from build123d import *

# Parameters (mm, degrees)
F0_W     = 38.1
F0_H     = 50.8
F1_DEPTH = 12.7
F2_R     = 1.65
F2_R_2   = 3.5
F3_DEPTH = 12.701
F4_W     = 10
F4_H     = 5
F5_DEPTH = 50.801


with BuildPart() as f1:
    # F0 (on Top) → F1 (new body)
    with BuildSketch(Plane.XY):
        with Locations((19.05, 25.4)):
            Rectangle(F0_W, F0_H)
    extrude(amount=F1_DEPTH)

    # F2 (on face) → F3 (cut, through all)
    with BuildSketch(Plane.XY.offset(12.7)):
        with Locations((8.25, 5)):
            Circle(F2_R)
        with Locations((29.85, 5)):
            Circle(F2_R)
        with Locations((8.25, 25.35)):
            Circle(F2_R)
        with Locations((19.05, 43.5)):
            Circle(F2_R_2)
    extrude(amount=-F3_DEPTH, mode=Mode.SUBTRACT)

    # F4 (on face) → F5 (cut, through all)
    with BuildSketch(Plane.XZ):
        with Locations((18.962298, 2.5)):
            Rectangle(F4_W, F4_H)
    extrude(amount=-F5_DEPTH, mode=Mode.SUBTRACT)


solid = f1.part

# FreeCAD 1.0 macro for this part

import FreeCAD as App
import Part
import Sketcher
from FreeCAD import Vector
Q = App.Units.Quantity


def add_polygon(sketch, points):
    """Adds a closed chain of lines whose ends are joined by coincident constraints."""
    first, n = sketch.GeometryCount, len(points)
    for a, b in zip(points, points[1:] + points[:1]):
        sketch.addGeometry(Part.LineSegment(App.Vector(*a, 0), App.Vector(*b, 0)), False)
    for i in range(n):
        sketch.addConstraint(Sketcher.Constraint("Coincident", first + i, 2, first + (i + 1) % n, 1))

doc = App.newDocument("Part")
body = doc.addObject("PartDesign::Body", "Body")

sketch1 = body.newObject("Sketcher::SketchObject", "Sketch")
sketch1.AttachmentSupport = (doc.getObject("XY_Plane"), [""])
sketch1.MapMode = "FlatFace"
add_polygon(sketch1, [(0, 51), (0, 0), (38, 0), (38, 51)])
sketch1.addConstraint([
    Sketcher.Constraint("Vertical", 0),
    Sketcher.Constraint("Horizontal", 1),
    Sketcher.Constraint("Vertical", 2),
    Sketcher.Constraint("Horizontal", 3),
    Sketcher.Constraint("Coincident", 0, 2, -1, 1),
    Sketcher.Constraint("DistanceX", 1, 1, 1, 2, Q("38.1 mm")),
    Sketcher.Constraint("DistanceY", 0, 2, 0, 1, Q("50.8 mm")),
])
pad1 = body.newObject("PartDesign::Pad", "Pad")
pad1.Profile = sketch1
pad1.Length = 12.7

sketch2 = body.newObject("Sketcher::SketchObject", "Sketch001")
sketch2.AttachmentSupport = (doc.getObject("XY_Plane"), [""])
sketch2.MapMode = "FlatFace"
sketch2.AttachmentOffset = App.Placement(Vector(0, 0, 12.7), App.Rotation())
sketch2.addGeometry([
    Part.Circle(Vector(8.2, 5, 0), Vector(0, 0, 1), 1.6),
    Part.Circle(Vector(29.9, 5, 0), Vector(0, 0, 1), 1.6),
    Part.Circle(Vector(8.2, 25.4, 0), Vector(0, 0, 1), 1.6),
    Part.Circle(Vector(19.1, 43.5, 0), Vector(0, 0, 1), 3.5),
], False)
sketch2.addConstraint([
    Sketcher.Constraint("Equal", 0, 1),
    Sketcher.Constraint("Equal", 1, 2),
    Sketcher.Constraint("Horizontal", 0, 3, 1, 3),
    Sketcher.Constraint("Vertical", 0, 3, 2, 3),
    Sketcher.Constraint("Diameter", 3, Q("7 mm")),
    Sketcher.Constraint("Diameter", 0, Q("3.3 mm")),
    Sketcher.Constraint("DistanceY", -1, 1, 0, 3, Q("5 mm")),
    Sketcher.Constraint("DistanceY", -1, 1, 3, 3, Q("43.5 mm")),
    Sketcher.Constraint("DistanceX", 0, 3, 1, 3, Q("21.6 mm")),
    Sketcher.Constraint("DistanceX", 2, 3, 3, 3, Q("10.8 mm")),
    Sketcher.Constraint("DistanceX", -1, 1, 0, 3, Q("8.25 mm")),
    Sketcher.Constraint("DistanceY", -1, 1, 2, 3, Q("25.35 mm")),
])
pocket1 = body.newObject("PartDesign::Pocket", "Pocket")
pocket1.Profile = sketch2
pocket1.Type = "ThroughAll"

sketch3 = body.newObject("Sketcher::SketchObject", "Sketch002")
sketch3.AttachmentSupport = (doc.getObject("XZ_Plane"), [""])
sketch3.MapMode = "FlatFace"
add_polygon(sketch3, [(14, 5), (14, 0), (24, 0), (24, 5)])
sketch3.addConstraint([
    Sketcher.Constraint("Vertical", 0),
    Sketcher.Constraint("Horizontal", 1),
    Sketcher.Constraint("Vertical", 2),
    Sketcher.Constraint("Horizontal", 3),
    Sketcher.Constraint("PointOnObject", 0, 2, -1),
    Sketcher.Constraint("DistanceX", 1, 1, 1, 2, Q("10 mm")),
    Sketcher.Constraint("DistanceY", 0, 2, 0, 1, Q("5 mm")),
    Sketcher.Constraint("DistanceX", -1, 1, 1, 2, Q("23.962298 mm")),
])
pocket2 = body.newObject("PartDesign::Pocket", "Pocket001")
pocket2.Profile = sketch3
pocket2.Type = "ThroughAll"

doc.recompute()
